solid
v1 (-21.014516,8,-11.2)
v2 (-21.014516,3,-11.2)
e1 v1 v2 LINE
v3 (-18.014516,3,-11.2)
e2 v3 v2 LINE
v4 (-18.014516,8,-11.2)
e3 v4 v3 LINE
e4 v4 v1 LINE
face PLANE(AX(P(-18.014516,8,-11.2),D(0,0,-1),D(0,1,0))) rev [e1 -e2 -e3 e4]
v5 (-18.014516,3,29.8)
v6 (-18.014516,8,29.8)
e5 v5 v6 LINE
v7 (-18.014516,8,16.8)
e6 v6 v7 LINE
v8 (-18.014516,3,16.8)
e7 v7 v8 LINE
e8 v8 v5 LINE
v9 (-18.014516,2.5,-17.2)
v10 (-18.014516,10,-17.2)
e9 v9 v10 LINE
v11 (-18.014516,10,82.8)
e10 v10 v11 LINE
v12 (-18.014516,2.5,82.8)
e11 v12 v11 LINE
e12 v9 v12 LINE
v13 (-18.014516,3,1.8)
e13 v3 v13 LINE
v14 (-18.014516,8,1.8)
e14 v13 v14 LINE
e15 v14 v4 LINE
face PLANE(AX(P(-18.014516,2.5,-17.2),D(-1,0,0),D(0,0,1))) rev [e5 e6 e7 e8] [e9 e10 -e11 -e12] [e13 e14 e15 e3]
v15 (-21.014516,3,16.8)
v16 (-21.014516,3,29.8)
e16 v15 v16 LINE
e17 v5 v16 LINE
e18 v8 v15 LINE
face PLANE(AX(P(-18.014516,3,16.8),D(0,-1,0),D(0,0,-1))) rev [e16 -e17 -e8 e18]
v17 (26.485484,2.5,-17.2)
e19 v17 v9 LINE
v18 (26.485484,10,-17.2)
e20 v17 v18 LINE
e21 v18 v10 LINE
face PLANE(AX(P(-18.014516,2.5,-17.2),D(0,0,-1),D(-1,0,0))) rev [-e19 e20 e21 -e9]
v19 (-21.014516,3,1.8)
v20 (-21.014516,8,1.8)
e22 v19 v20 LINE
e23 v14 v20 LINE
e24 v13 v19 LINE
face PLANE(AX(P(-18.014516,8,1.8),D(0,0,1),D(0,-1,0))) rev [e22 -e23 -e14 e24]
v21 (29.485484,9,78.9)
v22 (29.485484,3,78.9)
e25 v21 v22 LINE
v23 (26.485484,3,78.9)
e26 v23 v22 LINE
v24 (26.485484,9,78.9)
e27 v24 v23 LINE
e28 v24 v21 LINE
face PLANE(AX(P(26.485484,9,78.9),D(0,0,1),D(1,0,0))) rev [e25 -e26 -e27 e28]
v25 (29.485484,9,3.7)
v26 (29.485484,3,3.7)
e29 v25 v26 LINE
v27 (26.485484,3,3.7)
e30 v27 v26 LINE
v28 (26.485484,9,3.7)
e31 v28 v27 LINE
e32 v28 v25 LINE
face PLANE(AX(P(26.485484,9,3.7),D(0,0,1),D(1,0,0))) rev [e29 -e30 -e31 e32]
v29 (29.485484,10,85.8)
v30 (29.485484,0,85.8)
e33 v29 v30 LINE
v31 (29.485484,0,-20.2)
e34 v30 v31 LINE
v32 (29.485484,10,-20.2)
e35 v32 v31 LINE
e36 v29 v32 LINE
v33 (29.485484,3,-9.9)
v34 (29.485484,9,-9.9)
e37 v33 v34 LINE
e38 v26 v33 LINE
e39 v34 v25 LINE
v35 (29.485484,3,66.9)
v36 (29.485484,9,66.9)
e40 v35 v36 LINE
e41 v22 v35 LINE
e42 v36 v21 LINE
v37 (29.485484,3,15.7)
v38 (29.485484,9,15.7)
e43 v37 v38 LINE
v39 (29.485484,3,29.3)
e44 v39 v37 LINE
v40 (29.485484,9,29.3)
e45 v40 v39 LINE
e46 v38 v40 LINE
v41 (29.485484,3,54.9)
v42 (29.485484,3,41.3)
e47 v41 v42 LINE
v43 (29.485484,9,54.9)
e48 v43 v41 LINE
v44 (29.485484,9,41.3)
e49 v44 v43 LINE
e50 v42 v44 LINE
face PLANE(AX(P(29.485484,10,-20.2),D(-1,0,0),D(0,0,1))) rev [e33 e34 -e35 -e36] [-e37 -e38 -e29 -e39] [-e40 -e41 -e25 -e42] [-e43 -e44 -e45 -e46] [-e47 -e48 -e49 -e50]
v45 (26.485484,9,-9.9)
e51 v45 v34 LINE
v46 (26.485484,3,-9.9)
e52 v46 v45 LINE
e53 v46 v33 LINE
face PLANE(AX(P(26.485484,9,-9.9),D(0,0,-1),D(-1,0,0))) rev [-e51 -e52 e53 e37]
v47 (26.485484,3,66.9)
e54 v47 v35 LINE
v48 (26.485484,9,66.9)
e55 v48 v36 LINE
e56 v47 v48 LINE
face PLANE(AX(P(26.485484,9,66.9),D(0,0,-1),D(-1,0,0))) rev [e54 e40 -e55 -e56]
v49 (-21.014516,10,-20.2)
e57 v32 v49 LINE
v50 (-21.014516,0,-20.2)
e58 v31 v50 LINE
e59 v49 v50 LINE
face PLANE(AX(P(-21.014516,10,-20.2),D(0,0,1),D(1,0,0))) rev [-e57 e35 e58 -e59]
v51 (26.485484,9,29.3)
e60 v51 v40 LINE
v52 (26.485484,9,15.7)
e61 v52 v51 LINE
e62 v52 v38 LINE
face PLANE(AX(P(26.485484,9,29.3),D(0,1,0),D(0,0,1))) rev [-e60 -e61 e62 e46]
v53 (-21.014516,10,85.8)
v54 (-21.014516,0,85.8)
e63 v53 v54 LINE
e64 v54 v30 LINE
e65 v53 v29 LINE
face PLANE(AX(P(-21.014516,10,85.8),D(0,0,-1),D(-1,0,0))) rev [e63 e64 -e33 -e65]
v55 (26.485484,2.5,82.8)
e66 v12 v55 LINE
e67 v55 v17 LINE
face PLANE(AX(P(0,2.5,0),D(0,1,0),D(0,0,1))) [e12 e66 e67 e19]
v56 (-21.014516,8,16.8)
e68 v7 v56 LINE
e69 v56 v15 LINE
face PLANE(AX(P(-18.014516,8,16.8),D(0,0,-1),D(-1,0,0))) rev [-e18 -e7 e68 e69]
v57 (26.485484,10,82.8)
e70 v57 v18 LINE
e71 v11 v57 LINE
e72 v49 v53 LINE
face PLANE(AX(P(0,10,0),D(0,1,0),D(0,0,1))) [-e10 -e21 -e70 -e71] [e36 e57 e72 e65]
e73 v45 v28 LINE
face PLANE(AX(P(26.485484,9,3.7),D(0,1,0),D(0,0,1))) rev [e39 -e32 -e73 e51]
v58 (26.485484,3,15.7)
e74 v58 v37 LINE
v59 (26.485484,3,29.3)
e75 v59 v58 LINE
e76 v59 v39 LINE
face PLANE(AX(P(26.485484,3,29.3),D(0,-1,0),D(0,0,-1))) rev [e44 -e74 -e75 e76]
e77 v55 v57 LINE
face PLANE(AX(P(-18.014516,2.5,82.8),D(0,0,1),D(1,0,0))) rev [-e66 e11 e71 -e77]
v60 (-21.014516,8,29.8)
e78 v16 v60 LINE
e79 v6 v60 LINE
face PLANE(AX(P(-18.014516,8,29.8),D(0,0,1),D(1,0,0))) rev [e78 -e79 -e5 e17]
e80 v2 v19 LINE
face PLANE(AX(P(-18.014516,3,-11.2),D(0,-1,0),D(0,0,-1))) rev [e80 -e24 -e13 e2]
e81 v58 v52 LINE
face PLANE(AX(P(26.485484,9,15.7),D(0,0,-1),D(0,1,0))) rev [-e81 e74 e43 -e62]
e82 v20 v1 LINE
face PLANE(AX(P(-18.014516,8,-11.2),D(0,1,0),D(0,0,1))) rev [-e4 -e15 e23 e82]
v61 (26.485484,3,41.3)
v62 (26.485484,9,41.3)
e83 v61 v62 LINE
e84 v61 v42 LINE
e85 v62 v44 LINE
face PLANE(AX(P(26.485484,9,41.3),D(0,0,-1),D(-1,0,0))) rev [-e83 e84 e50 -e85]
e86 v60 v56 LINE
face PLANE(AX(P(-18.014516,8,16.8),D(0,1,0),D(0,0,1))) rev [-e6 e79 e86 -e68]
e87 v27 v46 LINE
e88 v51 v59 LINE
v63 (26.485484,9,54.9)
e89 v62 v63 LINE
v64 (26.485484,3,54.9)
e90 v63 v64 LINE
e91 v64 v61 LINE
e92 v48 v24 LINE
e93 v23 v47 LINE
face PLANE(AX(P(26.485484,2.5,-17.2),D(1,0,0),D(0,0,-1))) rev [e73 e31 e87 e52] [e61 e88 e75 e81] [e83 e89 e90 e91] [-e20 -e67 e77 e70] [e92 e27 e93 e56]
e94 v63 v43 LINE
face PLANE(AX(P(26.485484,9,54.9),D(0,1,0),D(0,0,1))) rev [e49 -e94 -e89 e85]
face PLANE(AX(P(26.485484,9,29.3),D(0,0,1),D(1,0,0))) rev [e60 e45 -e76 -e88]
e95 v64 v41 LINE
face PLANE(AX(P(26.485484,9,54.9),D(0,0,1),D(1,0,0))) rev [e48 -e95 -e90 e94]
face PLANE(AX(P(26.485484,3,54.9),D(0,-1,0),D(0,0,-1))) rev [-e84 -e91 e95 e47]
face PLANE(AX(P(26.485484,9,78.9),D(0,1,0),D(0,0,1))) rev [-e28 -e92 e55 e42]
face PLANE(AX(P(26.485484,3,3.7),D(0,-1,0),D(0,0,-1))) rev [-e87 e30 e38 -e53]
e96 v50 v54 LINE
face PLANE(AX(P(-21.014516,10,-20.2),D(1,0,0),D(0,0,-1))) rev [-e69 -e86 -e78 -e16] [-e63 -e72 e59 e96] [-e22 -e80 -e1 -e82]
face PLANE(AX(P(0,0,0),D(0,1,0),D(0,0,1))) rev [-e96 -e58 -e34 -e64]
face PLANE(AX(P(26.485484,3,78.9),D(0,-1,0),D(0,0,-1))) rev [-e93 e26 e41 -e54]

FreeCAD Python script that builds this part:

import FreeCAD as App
import Part
import Sketcher

V = App.Vector

doc = App.newDocument("Part")
body = doc.addObject("PartDesign::Body", "Body")

# Sketch on XZ plane
sketch1 = body.newObject("Sketcher::SketchObject", "Sketch")
sketch1.AttachmentSupport = (doc.getObject("XZ_Plane"), [""])
sketch1.MapMode = "FlatFace"
sketch1.addGeometry([
    Part.LineSegment(V(-21, -20, 0), V(-21, 86, 0)),
    Part.LineSegment(V(-21, 86, 0), V(29, 86, 0)),
    Part.LineSegment(V(29, 86, 0), V(29, -20, 0)),
    Part.LineSegment(V(29, -20, 0), V(-21, -20, 0)),
], False)
sketch1.addConstraint([
    Sketcher.Constraint("Coincident", 0, 2, 1, 1),
    Sketcher.Constraint("Coincident", 1, 2, 2, 1),
    Sketcher.Constraint("Coincident", 2, 2, 3, 1),
    Sketcher.Constraint("Coincident", 3, 2, 0, 1),
    Sketcher.Constraint("Vertical", 0),
    Sketcher.Constraint("Horizontal", 1),
    Sketcher.Constraint("Vertical", 2),
    Sketcher.Constraint("Horizontal", 3),
    Sketcher.Constraint("DistanceY", 0, 1, 0, 2, 106.0),
    Sketcher.Constraint("DistanceX", 1, 1, 1, 2, 50.5),
    Sketcher.Constraint("DistanceY", -1, 1, 0, 2, 85.8),
    Sketcher.Constraint("DistanceX", 0, 2, -1, 1, 21.014516),
])
pad1 = body.newObject("PartDesign::Pad", "Pad")
pad1.Profile = sketch1
pad1.Length = 10
pad1.Reversed = True

# Sketch on XZ plane
sketch2 = body.newObject("Sketcher::SketchObject", "Sketch001")
sketch2.AttachmentSupport = (doc.getObject("XZ_Plane"), [""])
sketch2.MapMode = "FlatFace"
sketch2.AttachmentOffset = App.Placement(V(0, 0, -10), App.Rotation())
sketch2.addGeometry([
    Part.LineSegment(V(-18, -17, 0), V(-18, 83, 0)),
    Part.LineSegment(V(-18, 83, 0), V(26, 83, 0)),
    Part.LineSegment(V(26, 83, 0), V(26, -17, 0)),
    Part.LineSegment(V(26, -17, 0), V(-18, -17, 0)),
], False)
sketch2.addConstraint([
    Sketcher.Constraint("Coincident", 0, 2, 1, 1),
    Sketcher.Constraint("Coincident", 1, 2, 2, 1),
    Sketcher.Constraint("Coincident", 2, 2, 3, 1),
    Sketcher.Constraint("Coincident", 3, 2, 0, 1),
    Sketcher.Constraint("Vertical", 0),
    Sketcher.Constraint("Horizontal", 1),
    Sketcher.Constraint("Vertical", 2),
    Sketcher.Constraint("Horizontal", 3),
    Sketcher.Constraint("DistanceY", 0, 1, 0, 2, 100.0),
    Sketcher.Constraint("DistanceX", 1, 1, 1, 2, 44.5),
    Sketcher.Constraint("DistanceY", -1, 1, 0, 2, 82.8),
    Sketcher.Constraint("DistanceX", 0, 2, -1, 1, 18.014516),
])
pad2 = body.newObject("PartDesign::Pad", "Pad001")
pad2.Profile = sketch2
pad2.Length = 7

# Sketch on XZ plane
sketch3 = body.newObject("Sketcher::SketchObject", "Sketch002")
sketch3.AttachmentSupport = (doc.getObject("XZ_Plane"), [""])
sketch3.MapMode = "FlatFace"
sketch3.AttachmentOffset = App.Placement(V(0, 0, -10), App.Rotation())
sketch3.addGeometry([
    Part.LineSegment(V(-18, -17, 0), V(-18, 83, 0)),
    Part.LineSegment(V(-18, 83, 0), V(26, 83, 0)),
    Part.LineSegment(V(26, 83, 0), V(26, -17, 0)),
    Part.LineSegment(V(26, -17, 0), V(-18, -17, 0)),
], False)
sketch3.addConstraint([
    Sketcher.Constraint("Coincident", 0, 2, 1, 1),
    Sketcher.Constraint("Coincident", 1, 2, 2, 1),
    Sketcher.Constraint("Coincident", 2, 2, 3, 1),
    Sketcher.Constraint("Coincident", 3, 2, 0, 1),
    Sketcher.Constraint("Vertical", 0),
    Sketcher.Constraint("Horizontal", 1),
    Sketcher.Constraint("Vertical", 2),
    Sketcher.Constraint("Horizontal", 3),
    Sketcher.Constraint("DistanceY", 0, 1, 0, 2, 100.0),
    Sketcher.Constraint("DistanceX", 1, 1, 1, 2, 44.5),
    Sketcher.Constraint("DistanceY", -1, 1, 0, 2, 82.8),
    Sketcher.Constraint("DistanceX", 0, 2, -1, 1, 18.014516),
])
pocket1 = body.newObject("PartDesign::Pocket", "Pocket")
pocket1.Profile = sketch3
pocket1.Length = 7.5
pocket1.Reversed = True

# Sketch on YZ plane
sketch4 = body.newObject("Sketcher::SketchObject", "Sketch003")
sketch4.AttachmentSupport = (doc.getObject("YZ_Plane"), [""])
sketch4.MapMode = "FlatFace"
sketch4.AttachmentOffset = App.Placement(V(0, 0, -21.014516), App.Rotation())
sketch4.addGeometry([
    Part.LineSegment(V(8, -11, 0), V(3, -11, 0)),  # 0
    Part.LineSegment(V(3, -11, 0), V(3, 2, 0)),  # 1
    Part.LineSegment(V(3, 2, 0), V(8, 2, 0)),  # 2
    Part.LineSegment(V(8, 2, 0), V(8, -11, 0)),  # 3
    Part.LineSegment(V(8, 17, 0), V(3, 17, 0)),  # 4
    Part.LineSegment(V(3, 17, 0), V(3, 30, 0)),  # 5
    Part.LineSegment(V(3, 30, 0), V(8, 30, 0)),  # 6
    Part.LineSegment(V(8, 30, 0), V(8, 17, 0)),  # 7
], False)
sketch4.addConstraint([
    Sketcher.Constraint("Coincident", 0, 2, 1, 1),
    Sketcher.Constraint("Coincident", 1, 2, 2, 1),
    Sketcher.Constraint("Coincident", 2, 2, 3, 1),
    Sketcher.Constraint("Coincident", 3, 2, 0, 1),
    Sketcher.Constraint("Coincident", 4, 2, 5, 1),
    Sketcher.Constraint("Coincident", 5, 2, 6, 1),
    Sketcher.Constraint("Coincident", 6, 2, 7, 1),
    Sketcher.Constraint("Coincident", 7, 2, 4, 1),
    Sketcher.Constraint("Horizontal", 0),
    Sketcher.Constraint("Vertical", 1),
    Sketcher.Constraint("Horizontal", 2),
    Sketcher.Constraint("Vertical", 3),
    Sketcher.Constraint("Horizontal", 4),
    Sketcher.Constraint("Vertical", 5),
    Sketcher.Constraint("Horizontal", 6),
    Sketcher.Constraint("Vertical", 7),
    Sketcher.Constraint("Vertical", 1, 2, 4, 2),
    Sketcher.Constraint("Vertical", 3, 2, 6, 2),
    Sketcher.Constraint("Equal", 3, 5),
    Sketcher.Constraint("DistanceX", 0, 2, 0, 1, 5.0),
    Sketcher.Constraint("DistanceY", 1, 1, 1, 2, 13.0),
    Sketcher.Constraint("DistanceX", -1, 1, 0, 2, 3.0),
    Sketcher.Constraint("DistanceY", 1, 2, 4, 2, 15.0),
    Sketcher.Constraint("DistanceY", 0, 2, -1, 1, 11.2),
])
pocket2 = body.newObject("PartDesign::Pocket", "Pocket001")
pocket2.Profile = sketch4
pocket2.Length = 3
pocket2.Reversed = True

# Sketch on YZ plane
sketch5 = body.newObject("Sketcher::SketchObject", "Sketch004")
sketch5.AttachmentSupport = (doc.getObject("YZ_Plane"), [""])
sketch5.MapMode = "FlatFace"
sketch5.AttachmentOffset = App.Placement(V(0, 0, 29.485484), App.Rotation())
sketch5.addGeometry([
    Part.LineSegment(V(9, 4, 0), V(3, 4, 0)),  # 0
    Part.LineSegment(V(3, 4, 0), V(3, -10, 0)),  # 1
    Part.LineSegment(V(3, -10, 0), V(9, -10, 0)),  # 2
    Part.LineSegment(V(9, -10, 0), V(9, 4, 0)),  # 3
    Part.LineSegment(V(9, 29, 0), V(3, 29, 0)),  # 4
    Part.LineSegment(V(3, 29, 0), V(3, 16, 0)),  # 5
    Part.LineSegment(V(3, 16, 0), V(9, 16, 0)),  # 6
    Part.LineSegment(V(9, 16, 0), V(9, 29, 0)),  # 7
    Part.LineSegment(V(9, 55, 0), V(3, 55, 0)),  # 8
    Part.LineSegment(V(3, 55, 0), V(3, 41, 0)),  # 9
    Part.LineSegment(V(3, 41, 0), V(9, 41, 0)),  # 10
    Part.LineSegment(V(9, 41, 0), V(9, 55, 0)),  # 11
    Part.LineSegment(V(9, 79, 0), V(3, 79, 0)),  # 12
    Part.LineSegment(V(3, 79, 0), V(3, 67, 0)),  # 13
    Part.LineSegment(V(3, 67, 0), V(9, 67, 0)),  # 14
    Part.LineSegment(V(9, 67, 0), V(9, 79, 0)),  # 15
], False)
sketch5.addConstraint([
    Sketcher.Constraint("Coincident", 0, 2, 1, 1),
    Sketcher.Constraint("Coincident", 1, 2, 2, 1),
    Sketcher.Constraint("Coincident", 2, 2, 3, 1),
    Sketcher.Constraint("Coincident", 3, 2, 0, 1),
    Sketcher.Constraint("Coincident", 4, 2, 5, 1),
    Sketcher.Constraint("Coincident", 5, 2, 6, 1),
    Sketcher.Constraint("Coincident", 6, 2, 7, 1),
    Sketcher.Constraint("Coincident", 7, 2, 4, 1),
    Sketcher.Constraint("Coincident", 8, 2, 9, 1),
    Sketcher.Constraint("Coincident", 9, 2, 10, 1),
    Sketcher.Constraint("Coincident", 10, 2, 11, 1),
    Sketcher.Constraint("Coincident", 11, 2, 8, 1),
    Sketcher.Constraint("Coincident", 12, 2, 13, 1),
    Sketcher.Constraint("Coincident", 13, 2, 14, 1),
    Sketcher.Constraint("Coincident", 14, 2, 15, 1),
    Sketcher.Constraint("Coincident", 15, 2, 12, 1),
    Sketcher.Constraint("Horizontal", 0),
    Sketcher.Constraint("Vertical", 1),
    Sketcher.Constraint("Horizontal", 2),
    Sketcher.Constraint("Vertical", 3),
    Sketcher.Constraint("Horizontal", 4),
    Sketcher.Constraint("Vertical", 5),
    Sketcher.Constraint("Horizontal", 6),
    Sketcher.Constraint("Vertical", 7),
    Sketcher.Constraint("Horizontal", 8),
    Sketcher.Constraint("Vertical", 9),
    Sketcher.Constraint("Horizontal", 10),
    Sketcher.Constraint("Vertical", 11),
    Sketcher.Constraint("Horizontal", 12),
    Sketcher.Constraint("Vertical", 13),
    Sketcher.Constraint("Horizontal", 14),
    Sketcher.Constraint("Vertical", 15),
    Sketcher.Constraint("Vertical", 1, 2, 4, 2),
    Sketcher.Constraint("Vertical", 3, 2, 6, 2),
    Sketcher.Constraint("Vertical", 5, 2, 8, 2),
    Sketcher.Constraint("Vertical", 7, 2, 10, 2),
    Sketcher.Constraint("Vertical", 9, 2, 12, 2),
    Sketcher.Constraint("Vertical", 11, 2, 14, 2),
    Sketcher.Constraint("Equal", 3, 5),
    Sketcher.Constraint("Equal", 7, 9),
    Sketcher.Constraint("DistanceX", 0, 2, 0, 1, 6.0),
    Sketcher.Constraint("DistanceY", 13, 2, 13, 1, 12.0),
    Sketcher.Constraint("DistanceY", 1, 2, 1, 1, 13.6),
    Sketcher.Constraint("DistanceX", -1, 1, 0, 2, 3.0),
    Sketcher.Constraint("DistanceY", 0, 2, 5, 2, 12.0),
    Sketcher.Constraint("DistanceY", 4, 2, 9, 2, 12.0),
    Sketcher.Constraint("DistanceY", 8, 2, 12, 2, 24.0),
    Sketcher.Constraint("DistanceY", -1, 1, 0, 2, 3.7),
])
pocket3 = body.newObject("PartDesign::Pocket", "Pocket002")
pocket3.Profile = sketch5
pocket3.Length = 3

doc.recompute()
